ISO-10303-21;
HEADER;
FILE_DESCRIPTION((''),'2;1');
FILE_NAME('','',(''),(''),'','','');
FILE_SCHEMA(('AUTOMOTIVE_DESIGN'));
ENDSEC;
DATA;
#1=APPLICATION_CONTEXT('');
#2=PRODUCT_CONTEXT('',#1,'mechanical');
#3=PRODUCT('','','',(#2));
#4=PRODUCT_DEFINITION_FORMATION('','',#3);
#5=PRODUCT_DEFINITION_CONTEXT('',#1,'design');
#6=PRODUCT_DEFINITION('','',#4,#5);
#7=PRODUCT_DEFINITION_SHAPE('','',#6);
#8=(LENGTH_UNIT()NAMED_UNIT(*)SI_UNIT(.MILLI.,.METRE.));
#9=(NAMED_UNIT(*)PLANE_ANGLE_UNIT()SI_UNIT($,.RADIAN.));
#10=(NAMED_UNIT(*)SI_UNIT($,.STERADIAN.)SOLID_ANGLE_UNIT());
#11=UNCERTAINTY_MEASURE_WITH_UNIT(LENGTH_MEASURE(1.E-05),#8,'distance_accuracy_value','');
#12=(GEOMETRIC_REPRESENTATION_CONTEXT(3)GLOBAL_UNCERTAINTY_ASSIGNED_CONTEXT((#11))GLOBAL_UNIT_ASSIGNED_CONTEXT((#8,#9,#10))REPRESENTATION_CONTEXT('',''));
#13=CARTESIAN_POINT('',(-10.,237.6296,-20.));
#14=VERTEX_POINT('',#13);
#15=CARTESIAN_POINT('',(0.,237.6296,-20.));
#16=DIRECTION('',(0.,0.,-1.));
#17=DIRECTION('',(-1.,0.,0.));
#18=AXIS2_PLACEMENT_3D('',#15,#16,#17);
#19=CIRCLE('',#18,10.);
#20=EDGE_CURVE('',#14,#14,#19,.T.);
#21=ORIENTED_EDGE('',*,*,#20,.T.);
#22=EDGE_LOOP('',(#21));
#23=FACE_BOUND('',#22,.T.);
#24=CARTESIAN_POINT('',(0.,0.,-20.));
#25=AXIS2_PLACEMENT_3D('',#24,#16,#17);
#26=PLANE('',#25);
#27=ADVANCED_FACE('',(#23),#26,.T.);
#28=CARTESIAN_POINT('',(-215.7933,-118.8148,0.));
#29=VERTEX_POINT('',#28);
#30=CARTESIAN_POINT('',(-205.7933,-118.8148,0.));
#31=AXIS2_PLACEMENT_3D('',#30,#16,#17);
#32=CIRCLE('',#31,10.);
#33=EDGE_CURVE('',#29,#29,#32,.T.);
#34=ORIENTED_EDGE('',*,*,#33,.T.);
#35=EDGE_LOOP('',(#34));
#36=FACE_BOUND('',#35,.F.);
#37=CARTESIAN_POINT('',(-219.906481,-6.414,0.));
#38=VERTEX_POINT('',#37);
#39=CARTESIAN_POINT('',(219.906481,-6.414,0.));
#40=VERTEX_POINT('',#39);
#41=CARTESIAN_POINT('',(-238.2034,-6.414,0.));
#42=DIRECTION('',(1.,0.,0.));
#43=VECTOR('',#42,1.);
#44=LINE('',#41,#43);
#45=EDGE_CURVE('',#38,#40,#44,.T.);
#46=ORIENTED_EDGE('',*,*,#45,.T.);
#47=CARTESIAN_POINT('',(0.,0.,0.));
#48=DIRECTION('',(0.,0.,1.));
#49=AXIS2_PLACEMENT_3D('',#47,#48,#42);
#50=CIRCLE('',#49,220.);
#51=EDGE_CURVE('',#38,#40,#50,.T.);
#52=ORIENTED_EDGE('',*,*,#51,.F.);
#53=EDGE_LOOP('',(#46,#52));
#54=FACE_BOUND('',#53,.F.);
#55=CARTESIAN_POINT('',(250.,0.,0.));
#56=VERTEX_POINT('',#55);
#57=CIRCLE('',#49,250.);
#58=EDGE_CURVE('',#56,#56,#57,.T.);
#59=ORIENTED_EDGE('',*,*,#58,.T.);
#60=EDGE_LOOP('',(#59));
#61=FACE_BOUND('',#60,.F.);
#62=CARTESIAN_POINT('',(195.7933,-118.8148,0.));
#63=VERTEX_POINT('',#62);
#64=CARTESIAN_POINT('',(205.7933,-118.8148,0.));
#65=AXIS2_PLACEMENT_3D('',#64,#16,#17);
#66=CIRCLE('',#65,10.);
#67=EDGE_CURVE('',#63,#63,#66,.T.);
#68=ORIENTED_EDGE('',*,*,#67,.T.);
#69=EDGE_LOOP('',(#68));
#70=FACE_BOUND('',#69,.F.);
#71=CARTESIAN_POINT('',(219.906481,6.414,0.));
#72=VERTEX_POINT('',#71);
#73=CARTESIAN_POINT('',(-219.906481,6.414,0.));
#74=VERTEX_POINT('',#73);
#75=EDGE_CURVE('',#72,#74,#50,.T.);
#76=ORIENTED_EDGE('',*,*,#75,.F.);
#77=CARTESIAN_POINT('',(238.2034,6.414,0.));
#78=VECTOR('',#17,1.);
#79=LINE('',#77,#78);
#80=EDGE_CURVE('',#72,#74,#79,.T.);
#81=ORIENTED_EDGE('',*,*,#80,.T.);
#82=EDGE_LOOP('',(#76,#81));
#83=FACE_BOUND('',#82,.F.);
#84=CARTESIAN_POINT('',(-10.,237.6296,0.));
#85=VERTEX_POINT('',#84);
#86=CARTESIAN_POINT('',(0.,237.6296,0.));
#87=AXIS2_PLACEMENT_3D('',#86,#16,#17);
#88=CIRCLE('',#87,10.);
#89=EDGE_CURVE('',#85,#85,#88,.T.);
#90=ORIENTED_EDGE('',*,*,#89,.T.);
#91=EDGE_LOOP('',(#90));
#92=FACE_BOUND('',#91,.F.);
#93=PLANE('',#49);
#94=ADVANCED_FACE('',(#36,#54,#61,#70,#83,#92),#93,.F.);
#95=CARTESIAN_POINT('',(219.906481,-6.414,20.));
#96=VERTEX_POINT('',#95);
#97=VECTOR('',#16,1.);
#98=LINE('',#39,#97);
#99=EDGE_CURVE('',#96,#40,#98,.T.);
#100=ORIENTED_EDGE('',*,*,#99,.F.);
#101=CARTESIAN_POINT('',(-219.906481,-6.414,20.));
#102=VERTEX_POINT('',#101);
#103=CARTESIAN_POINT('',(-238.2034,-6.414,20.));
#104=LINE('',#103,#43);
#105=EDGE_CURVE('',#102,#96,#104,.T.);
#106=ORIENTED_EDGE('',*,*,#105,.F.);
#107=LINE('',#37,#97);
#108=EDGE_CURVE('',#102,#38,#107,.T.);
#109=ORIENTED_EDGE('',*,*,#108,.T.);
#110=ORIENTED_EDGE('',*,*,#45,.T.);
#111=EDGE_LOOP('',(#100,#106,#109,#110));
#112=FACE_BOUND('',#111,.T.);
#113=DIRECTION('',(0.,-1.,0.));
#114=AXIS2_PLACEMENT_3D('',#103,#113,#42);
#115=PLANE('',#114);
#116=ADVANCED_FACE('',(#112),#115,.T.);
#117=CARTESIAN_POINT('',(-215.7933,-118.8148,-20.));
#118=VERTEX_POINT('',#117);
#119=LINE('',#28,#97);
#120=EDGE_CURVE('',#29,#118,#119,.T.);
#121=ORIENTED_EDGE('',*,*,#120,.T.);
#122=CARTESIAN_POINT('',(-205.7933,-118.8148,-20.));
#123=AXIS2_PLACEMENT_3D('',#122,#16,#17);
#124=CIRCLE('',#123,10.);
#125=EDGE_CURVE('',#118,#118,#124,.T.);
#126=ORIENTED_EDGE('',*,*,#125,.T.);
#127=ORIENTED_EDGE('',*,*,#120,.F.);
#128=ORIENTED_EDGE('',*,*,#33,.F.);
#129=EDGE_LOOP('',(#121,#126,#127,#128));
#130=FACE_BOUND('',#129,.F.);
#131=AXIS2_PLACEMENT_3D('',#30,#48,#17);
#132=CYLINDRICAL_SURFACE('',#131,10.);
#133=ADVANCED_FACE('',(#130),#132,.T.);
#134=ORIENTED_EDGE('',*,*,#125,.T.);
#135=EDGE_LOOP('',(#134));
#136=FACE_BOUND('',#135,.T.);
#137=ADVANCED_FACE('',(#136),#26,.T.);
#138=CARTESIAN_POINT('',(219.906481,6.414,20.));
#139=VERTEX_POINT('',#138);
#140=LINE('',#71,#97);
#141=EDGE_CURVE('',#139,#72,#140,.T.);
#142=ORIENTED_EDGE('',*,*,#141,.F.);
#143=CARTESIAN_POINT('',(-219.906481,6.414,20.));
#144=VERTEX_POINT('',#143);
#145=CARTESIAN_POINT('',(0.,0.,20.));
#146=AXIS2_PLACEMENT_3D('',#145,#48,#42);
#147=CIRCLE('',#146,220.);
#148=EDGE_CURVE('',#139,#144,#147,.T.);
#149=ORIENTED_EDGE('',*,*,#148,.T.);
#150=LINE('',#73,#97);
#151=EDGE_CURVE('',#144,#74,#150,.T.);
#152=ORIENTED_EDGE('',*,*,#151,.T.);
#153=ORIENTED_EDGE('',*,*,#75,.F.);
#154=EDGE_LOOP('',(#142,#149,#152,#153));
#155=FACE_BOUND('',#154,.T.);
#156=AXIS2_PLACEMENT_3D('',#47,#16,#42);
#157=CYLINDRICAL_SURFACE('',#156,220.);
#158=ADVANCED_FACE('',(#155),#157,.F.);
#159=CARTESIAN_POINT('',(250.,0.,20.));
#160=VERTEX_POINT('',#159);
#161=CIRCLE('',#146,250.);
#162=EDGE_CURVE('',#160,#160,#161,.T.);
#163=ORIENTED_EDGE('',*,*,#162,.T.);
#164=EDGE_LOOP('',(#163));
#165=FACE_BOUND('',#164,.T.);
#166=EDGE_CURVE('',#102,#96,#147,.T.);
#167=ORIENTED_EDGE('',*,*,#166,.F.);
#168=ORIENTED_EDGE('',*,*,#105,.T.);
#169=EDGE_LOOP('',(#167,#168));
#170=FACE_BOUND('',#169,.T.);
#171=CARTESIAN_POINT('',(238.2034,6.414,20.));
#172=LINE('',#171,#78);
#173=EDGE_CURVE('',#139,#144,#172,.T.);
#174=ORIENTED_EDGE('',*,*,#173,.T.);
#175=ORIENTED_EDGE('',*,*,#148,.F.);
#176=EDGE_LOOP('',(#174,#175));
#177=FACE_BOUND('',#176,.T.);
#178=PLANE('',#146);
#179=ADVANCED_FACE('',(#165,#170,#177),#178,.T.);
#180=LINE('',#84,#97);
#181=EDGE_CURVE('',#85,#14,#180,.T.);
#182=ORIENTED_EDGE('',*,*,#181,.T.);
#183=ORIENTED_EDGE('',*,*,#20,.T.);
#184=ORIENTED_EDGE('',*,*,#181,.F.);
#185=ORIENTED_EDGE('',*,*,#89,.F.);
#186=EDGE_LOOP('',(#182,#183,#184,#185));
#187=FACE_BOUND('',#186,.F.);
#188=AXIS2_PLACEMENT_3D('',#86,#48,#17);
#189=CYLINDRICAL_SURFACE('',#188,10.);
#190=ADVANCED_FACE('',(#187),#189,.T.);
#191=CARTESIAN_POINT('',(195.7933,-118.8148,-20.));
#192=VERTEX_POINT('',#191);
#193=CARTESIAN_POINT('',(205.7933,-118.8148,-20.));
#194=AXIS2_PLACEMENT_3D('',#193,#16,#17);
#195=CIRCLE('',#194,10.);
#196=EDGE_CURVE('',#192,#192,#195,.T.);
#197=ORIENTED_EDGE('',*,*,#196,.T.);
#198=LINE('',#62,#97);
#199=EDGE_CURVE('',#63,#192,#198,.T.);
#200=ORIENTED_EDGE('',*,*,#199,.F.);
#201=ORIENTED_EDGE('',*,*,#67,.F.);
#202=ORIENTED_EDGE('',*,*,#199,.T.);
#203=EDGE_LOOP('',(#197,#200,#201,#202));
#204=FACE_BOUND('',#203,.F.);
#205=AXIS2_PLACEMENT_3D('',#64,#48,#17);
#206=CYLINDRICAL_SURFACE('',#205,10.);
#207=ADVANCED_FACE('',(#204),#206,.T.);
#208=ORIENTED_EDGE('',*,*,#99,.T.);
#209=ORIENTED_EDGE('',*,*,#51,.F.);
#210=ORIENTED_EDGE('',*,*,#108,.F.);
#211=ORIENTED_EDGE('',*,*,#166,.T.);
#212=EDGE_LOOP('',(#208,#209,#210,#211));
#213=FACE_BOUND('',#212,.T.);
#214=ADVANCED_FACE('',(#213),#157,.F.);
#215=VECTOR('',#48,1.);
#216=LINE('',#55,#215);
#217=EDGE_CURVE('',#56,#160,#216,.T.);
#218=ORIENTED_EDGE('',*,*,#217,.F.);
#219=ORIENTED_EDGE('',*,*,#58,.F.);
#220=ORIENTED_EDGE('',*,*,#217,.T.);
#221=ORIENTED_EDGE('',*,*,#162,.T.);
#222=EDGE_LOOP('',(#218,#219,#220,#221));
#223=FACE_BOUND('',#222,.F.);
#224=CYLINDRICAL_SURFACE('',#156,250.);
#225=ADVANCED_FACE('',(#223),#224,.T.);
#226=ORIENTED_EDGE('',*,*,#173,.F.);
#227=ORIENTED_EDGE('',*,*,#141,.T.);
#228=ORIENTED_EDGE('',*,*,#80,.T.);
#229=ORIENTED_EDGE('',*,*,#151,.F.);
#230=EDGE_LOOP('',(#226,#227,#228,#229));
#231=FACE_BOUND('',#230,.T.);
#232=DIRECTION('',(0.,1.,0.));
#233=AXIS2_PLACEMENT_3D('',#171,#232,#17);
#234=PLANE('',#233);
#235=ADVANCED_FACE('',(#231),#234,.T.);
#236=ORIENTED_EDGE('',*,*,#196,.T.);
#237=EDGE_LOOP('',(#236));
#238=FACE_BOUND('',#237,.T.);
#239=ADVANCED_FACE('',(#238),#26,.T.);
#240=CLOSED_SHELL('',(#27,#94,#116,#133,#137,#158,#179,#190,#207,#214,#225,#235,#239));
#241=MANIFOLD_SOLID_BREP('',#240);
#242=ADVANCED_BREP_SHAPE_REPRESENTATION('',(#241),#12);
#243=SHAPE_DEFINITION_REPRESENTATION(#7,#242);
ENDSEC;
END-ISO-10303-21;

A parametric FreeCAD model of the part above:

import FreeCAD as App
import Part
import Sketcher
from FreeCAD import Vector


def add_polygon(sketch, points):
    """Adds a closed chain of lines whose ends are joined by coincident constraints."""
    first, n = sketch.GeometryCount, len(points)
    for a, b in zip(points, points[1:] + points[:1]):
        sketch.addGeometry(Part.LineSegment(App.Vector(*a, 0), App.Vector(*b, 0)), False)
    for i in range(n):
        sketch.addConstraint(Sketcher.Constraint("Coincident", first + i, 2, first + (i + 1) % n, 1))

doc = App.newDocument("Part")
params = doc.addObject("Spreadsheet::Sheet", "Params")
for row, (alias, value) in enumerate([
    ("sketch1_diameter", "500 mm"),
    ("sketch1_diameter2", "440 mm"),
    ("pad1_length", "20 mm"),
    ("sketch2_diameter", "20 mm"),
    ("pad2_length", "20 mm"),
    ("pad3_length", "20 mm"),
], start=1):
    params.set(f"A{row}", alias)
    params.set(f"B{row}", "=" + value)
    params.setAlias(f"B{row}", alias)

body = doc.addObject("PartDesign::Body", "Body")

# Sketch on XY plane
sketch1 = doc.addObject("Sketcher::SketchObject", "Sketch")
body.addObject(sketch1)
sketch1.AttachmentSupport = (doc.XY_Plane, [""])
sketch1.MapMode = "FlatFace"
sketch1.addGeometry(Part.Circle(Vector(0, 0, 0), Vector(0, 0, 1), 250), False)
sketch1.addGeometry(Part.Circle(Vector(0, 0, 0), Vector(0, 0, 1), 220), False)
sketch1.addConstraint(Sketcher.Constraint("Coincident", 0, 3, -1, 1))
sketch1.addConstraint(Sketcher.Constraint("Coincident", 1, 3, -1, 1))
sketch1.addConstraint(Sketcher.Constraint("Diameter", 0, 500.0))
sketch1.addConstraint(Sketcher.Constraint("Diameter", 1, 440.0))
sketch1.setExpression("Constraints[2]", "Params.sketch1_diameter")
sketch1.setExpression("Constraints[3]", "Params.sketch1_diameter2")
pad1 = doc.addObject("PartDesign::Pad", "Pad")
body.addObject(pad1)
pad1.Profile = sketch1
pad1.setExpression("Length", "Params.pad1_length")

# Sketch on XY plane
sketch2 = doc.addObject("Sketcher::SketchObject", "Sketch001")
body.addObject(sketch2)
sketch2.AttachmentSupport = (doc.XY_Plane, [""])
sketch2.MapMode = "FlatFace"
sketch2.addGeometry(Part.Circle(Vector(0, 238, 0), Vector(0, 0, 1), 10), False)
sketch2.addGeometry(Part.Circle(Vector(206, -119, 0), Vector(0, 0, 1), 10), False)
sketch2.addGeometry(Part.Circle(Vector(-206, -119, 0), Vector(0, 0, 1), 10), False)
sketch2.addConstraint(Sketcher.Constraint("Equal", 0, 1))
sketch2.addConstraint(Sketcher.Constraint("Equal", 1, 2))
sketch2.addConstraint(Sketcher.Constraint("Symmetric", 1, 3, 2, 3, -2))
sketch2.addConstraint(Sketcher.Constraint("PointOnObject", 0, 3, -2))
sketch2.addConstraint(Sketcher.Constraint("Diameter", 0, 20.0))
sketch2.addConstraint(Sketcher.Constraint("DistanceY", -1, 1, 0, 3, 237.6296))
sketch2.addConstraint(Sketcher.Constraint("DistanceX", -1, 1, 1, 3, 205.7933))
sketch2.addConstraint(Sketcher.Constraint("DistanceY", 1, 3, -1, 1, 118.8148))
sketch2.setExpression("Constraints[4]", "Params.sketch2_diameter")
pad2 = doc.addObject("PartDesign::Pad", "Pad001")
body.addObject(pad2)
pad2.Profile = sketch2
pad2.setExpression("Length", "Params.pad2_length")
pad2.Reversed = True

# Sketch on XY plane
sketch3 = doc.addObject("Sketcher::SketchObject", "Sketch002")
body.addObject(sketch3)
sketch3.AttachmentSupport = (doc.XY_Plane, [""])
sketch3.MapMode = "FlatFace"
sketch3.AttachmentOffset = App.Placement(Vector(0, 0, 20), App.Rotation())
add_polygon(sketch3, [(-238, 6), (-238, -6), (238, -6), (238, 6)])  # lines 0-3
sketch3.addConstraint(Sketcher.Constraint("Vertical", 0))
sketch3.addConstraint(Sketcher.Constraint("Horizontal", 1))
sketch3.addConstraint(Sketcher.Constraint("Vertical", 2))
sketch3.addConstraint(Sketcher.Constraint("Horizontal", 3))
sketch3.addConstraint(Sketcher.Constraint("Symmetric", 0, 2, 2, 2, -1, 1))
sketch3.addConstraint(Sketcher.Constraint("DistanceY", 0, 2, 0, 1, 12.828))
sketch3.addConstraint(Sketcher.Constraint("DistanceX", 1, 1, 1, 2, 476.4068))
pad3 = doc.addObject("PartDesign::Pad", "Pad002")
body.addObject(pad3)
pad3.Profile = sketch3
pad3.setExpression("Length", "Params.pad3_length")
pad3.Reversed = True

doc.recompute()
